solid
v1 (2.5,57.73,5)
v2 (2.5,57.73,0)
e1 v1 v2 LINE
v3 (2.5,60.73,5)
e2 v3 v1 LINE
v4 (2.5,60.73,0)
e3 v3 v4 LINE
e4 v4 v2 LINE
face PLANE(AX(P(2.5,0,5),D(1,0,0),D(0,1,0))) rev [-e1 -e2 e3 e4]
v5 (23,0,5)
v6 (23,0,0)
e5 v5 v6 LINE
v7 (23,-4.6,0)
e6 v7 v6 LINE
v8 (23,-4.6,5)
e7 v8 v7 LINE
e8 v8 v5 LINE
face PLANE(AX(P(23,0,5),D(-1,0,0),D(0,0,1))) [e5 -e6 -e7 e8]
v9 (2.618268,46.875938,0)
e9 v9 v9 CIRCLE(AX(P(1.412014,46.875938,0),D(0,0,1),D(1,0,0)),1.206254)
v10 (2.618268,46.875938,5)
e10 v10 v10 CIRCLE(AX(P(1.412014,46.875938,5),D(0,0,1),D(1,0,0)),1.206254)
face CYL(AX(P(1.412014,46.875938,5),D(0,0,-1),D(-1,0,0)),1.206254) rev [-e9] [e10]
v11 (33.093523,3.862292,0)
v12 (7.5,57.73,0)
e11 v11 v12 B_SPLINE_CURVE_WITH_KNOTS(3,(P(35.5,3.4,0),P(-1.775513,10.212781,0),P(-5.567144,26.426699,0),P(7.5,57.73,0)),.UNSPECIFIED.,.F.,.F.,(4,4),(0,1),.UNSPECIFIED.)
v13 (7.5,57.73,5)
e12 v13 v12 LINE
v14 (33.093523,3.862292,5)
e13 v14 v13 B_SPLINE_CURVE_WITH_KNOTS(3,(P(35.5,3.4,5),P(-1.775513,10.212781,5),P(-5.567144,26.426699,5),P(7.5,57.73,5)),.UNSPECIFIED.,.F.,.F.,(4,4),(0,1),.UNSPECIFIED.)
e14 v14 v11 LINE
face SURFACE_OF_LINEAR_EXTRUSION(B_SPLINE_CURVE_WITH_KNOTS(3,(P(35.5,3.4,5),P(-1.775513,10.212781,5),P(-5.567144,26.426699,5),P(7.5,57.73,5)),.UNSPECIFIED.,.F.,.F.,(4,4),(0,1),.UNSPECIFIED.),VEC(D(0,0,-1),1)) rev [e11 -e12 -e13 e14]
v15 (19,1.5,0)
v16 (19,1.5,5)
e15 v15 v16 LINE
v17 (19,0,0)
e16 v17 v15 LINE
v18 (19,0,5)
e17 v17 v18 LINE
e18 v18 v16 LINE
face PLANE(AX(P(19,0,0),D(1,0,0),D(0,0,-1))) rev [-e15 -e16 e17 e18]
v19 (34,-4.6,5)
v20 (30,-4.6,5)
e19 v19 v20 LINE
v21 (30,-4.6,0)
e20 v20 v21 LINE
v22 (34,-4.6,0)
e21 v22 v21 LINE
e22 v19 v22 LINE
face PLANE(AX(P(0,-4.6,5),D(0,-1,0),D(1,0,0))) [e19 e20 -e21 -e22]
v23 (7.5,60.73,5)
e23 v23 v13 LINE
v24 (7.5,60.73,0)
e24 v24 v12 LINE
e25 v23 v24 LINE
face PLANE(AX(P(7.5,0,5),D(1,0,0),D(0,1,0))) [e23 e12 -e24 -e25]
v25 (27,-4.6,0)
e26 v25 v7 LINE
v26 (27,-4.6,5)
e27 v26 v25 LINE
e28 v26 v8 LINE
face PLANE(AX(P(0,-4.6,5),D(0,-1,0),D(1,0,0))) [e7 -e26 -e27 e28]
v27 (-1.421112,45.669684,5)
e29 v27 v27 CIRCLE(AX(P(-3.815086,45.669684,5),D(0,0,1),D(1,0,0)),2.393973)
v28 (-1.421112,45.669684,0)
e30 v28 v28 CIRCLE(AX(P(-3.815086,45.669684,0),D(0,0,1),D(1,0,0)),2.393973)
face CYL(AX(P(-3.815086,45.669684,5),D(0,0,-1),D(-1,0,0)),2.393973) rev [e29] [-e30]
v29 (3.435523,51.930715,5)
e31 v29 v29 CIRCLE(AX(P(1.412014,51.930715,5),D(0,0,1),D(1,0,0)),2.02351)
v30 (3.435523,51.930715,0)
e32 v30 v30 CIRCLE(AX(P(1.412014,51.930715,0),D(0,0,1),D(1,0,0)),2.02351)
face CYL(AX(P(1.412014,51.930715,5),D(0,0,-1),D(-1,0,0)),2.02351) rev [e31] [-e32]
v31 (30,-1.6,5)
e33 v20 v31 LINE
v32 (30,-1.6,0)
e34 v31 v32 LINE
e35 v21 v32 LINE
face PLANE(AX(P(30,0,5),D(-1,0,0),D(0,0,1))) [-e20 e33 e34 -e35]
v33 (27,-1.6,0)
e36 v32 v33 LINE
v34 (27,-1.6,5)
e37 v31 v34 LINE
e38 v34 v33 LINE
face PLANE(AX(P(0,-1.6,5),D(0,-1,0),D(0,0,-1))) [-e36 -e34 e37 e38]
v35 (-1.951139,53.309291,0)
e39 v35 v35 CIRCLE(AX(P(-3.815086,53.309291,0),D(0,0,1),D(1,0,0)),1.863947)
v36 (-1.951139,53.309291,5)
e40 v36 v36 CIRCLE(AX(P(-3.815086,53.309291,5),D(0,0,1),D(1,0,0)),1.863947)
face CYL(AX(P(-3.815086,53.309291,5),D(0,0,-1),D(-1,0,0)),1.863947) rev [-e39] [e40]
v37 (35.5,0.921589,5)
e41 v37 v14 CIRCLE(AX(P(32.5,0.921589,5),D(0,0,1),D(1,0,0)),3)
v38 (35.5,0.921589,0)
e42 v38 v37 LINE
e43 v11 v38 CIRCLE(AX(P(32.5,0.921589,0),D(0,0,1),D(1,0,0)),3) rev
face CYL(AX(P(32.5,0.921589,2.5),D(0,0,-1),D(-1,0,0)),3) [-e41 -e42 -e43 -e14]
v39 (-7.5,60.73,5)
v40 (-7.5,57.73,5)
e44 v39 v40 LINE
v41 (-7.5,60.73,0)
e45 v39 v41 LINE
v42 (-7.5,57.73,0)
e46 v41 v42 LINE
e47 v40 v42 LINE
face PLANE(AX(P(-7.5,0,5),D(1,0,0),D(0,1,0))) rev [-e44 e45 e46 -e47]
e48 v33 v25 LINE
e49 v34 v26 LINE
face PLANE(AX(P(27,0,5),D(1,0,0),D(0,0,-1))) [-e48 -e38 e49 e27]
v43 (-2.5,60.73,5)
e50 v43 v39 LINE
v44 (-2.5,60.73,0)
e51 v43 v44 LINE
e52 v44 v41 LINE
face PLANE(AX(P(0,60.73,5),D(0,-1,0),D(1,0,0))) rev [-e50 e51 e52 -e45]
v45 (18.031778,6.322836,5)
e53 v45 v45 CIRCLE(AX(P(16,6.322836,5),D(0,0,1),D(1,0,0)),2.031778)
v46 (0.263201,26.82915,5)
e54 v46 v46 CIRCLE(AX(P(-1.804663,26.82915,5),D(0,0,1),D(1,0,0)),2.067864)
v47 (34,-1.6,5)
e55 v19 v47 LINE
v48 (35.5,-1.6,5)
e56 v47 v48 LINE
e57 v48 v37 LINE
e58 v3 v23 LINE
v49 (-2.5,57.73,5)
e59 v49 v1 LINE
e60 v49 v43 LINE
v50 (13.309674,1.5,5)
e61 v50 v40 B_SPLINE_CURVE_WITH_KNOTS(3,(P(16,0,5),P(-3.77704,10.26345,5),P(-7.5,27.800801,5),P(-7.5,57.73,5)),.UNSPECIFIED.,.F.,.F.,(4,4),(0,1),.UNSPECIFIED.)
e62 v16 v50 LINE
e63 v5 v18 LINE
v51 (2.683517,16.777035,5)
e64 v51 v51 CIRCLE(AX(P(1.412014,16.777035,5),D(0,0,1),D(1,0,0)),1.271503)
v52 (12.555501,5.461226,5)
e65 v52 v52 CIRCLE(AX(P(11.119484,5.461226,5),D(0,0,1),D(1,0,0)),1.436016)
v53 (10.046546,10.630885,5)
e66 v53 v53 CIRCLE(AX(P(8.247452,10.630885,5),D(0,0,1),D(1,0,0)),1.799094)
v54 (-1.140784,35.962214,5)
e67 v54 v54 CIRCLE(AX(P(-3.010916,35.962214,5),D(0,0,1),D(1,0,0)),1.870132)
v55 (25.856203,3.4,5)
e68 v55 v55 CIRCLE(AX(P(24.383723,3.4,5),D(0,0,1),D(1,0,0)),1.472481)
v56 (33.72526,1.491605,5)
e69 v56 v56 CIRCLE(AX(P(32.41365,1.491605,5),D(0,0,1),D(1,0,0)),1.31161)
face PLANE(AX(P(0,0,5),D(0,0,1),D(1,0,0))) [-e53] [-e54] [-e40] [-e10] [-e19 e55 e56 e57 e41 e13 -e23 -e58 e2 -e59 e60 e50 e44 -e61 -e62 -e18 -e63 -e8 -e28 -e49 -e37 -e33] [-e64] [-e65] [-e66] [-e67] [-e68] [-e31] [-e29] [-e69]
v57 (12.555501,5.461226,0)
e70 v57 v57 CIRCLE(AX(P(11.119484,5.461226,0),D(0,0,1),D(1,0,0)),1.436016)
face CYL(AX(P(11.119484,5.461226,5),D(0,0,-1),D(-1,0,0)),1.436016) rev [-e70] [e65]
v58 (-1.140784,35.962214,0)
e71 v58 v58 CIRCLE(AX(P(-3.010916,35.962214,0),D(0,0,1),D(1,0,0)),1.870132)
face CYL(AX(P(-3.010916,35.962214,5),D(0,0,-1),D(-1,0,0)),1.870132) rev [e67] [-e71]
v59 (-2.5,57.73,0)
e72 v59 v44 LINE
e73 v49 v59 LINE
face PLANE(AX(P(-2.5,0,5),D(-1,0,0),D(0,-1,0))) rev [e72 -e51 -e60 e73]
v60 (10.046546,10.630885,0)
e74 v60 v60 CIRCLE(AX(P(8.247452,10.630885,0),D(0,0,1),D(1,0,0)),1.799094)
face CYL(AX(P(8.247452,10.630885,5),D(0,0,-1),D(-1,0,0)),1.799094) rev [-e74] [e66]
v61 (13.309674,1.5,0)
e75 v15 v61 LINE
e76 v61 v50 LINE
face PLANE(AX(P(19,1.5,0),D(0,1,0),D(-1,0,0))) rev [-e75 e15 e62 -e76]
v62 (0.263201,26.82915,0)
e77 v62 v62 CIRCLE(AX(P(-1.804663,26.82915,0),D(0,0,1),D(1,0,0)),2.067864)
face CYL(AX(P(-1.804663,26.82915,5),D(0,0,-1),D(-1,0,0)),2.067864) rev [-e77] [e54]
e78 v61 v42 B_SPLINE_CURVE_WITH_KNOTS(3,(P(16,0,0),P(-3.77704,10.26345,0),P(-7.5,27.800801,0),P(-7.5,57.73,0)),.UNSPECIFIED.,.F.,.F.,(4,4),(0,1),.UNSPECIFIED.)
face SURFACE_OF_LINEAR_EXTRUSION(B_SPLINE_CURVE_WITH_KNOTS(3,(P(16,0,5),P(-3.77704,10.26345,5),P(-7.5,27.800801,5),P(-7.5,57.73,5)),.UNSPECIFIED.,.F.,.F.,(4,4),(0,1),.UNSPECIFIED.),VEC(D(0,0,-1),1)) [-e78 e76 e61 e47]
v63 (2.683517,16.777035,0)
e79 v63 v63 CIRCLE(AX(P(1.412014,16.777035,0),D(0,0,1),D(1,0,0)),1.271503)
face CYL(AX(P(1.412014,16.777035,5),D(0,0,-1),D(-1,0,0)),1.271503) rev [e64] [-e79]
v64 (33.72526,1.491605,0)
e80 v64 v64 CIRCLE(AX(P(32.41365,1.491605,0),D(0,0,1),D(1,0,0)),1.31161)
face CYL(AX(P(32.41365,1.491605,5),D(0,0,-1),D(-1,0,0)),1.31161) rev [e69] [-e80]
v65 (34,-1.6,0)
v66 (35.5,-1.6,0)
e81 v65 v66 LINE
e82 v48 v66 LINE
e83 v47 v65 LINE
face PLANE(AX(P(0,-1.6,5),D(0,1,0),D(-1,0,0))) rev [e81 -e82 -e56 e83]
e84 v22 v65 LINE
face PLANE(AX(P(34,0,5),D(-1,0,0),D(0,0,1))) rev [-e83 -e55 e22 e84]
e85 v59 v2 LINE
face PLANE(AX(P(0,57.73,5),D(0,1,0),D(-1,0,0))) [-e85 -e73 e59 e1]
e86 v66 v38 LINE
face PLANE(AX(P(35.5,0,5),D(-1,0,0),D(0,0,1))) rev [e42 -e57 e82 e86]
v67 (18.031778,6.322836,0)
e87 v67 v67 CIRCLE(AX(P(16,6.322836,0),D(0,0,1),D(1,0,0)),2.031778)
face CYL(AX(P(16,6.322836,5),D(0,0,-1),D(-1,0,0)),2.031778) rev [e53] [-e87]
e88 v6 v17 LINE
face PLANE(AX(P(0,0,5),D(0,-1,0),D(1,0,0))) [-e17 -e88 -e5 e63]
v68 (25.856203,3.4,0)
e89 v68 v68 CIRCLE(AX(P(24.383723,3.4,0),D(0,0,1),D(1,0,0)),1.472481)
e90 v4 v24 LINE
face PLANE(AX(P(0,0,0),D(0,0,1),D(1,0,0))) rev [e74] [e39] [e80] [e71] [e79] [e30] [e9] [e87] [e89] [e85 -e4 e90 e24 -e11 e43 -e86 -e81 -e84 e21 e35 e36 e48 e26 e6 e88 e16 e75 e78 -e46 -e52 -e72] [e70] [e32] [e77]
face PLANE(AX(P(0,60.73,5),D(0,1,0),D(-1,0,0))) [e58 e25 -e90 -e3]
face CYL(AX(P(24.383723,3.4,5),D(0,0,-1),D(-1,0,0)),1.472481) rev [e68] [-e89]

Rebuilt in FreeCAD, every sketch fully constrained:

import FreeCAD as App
import Part
import Sketcher

V = App.Vector
Q = App.Units.Quantity


def edges_at(feature, points):
    """Names of the edges that pass closest to the given points."""
    edges = feature.Shape.Edges
    near = lambda p: min(range(len(edges)), key=lambda i: edges[i].distToShape(Part.Vertex(*p))[0])
    return sorted({f"Edge{near(p) + 1}" for p in points})

doc = App.newDocument("Part")
body = doc.addObject("PartDesign::Body", "Body")

sketch1 = body.newObject("Sketcher::SketchObject", "Sketch")
sketch1.AttachmentSupport = (doc.getObject("XY_Plane"), [""])
sketch1.MapMode = "FlatFace"
sketch1.addGeometry(Part.LineSegment(V(30, -1.6, 0), V(30, -4.6, 0)), False)
sketch1.addGeometry(Part.LineSegment(V(30, -4.6, 0), V(34, -4.6, 0)), False)
sketch1.addGeometry(Part.LineSegment(V(34, -4.6, 0), V(34, -1.6, 0)), False)
sketch1.addGeometry(Part.LineSegment(V(34, -1.6, 0), V(35.5, -1.6, 0)), False)
sketch1.addGeometry(Part.LineSegment(V(35.5, -1.6, 0), V(35.5, 3.4, 0)), False)
sketch1.addGeometry(Part.BSplineCurve([V(35.5, 3.4, 0), V(-1.775513, 10.212781, 0), V(-5.567144, 26.426699, 0), V(7.5, 57.73, 0)], [4, 4], [0, 1], False, 3, [1, 1, 1, 1], False), False)
sketch1.addGeometry(Part.LineSegment(V(7.5, 57.73, 0), V(7.5, 60.73, 0)), False)
sketch1.addGeometry(Part.LineSegment(V(7.5, 60.73, 0), V(2.5, 60.73, 0)), False)
sketch1.addGeometry(Part.LineSegment(V(2.5, 60.73, 0), V(2.5, 57.73, 0)), False)
sketch1.addGeometry(Part.LineSegment(V(2.5, 57.73, 0), V(-2.5, 57.73, 0)), False)
sketch1.addGeometry(Part.LineSegment(V(-2.5, 57.73, 0), V(-2.5, 60.73, 0)), False)
sketch1.addGeometry(Part.LineSegment(V(-2.5, 60.73, 0), V(-7.5, 60.73, 0)), False)
sketch1.addGeometry(Part.LineSegment(V(-7.5, 60.73, 0), V(-7.5, 57.73, 0)), False)
sketch1.addGeometry(Part.BSplineCurve([V(16, 0, 0), V(-3.77704, 10.26345, 0), V(-7.5, 27.800801, 0), V(-7.5, 57.73, 0)], [4, 4], [0, 1], False, 3, [1, 1, 1, 1], False), False)
sketch1.addGeometry(Part.LineSegment(V(16, 0, 0), V(23, 0, 0)), False)
sketch1.addGeometry(Part.LineSegment(V(23, 0, 0), V(23, -4.6, 0)), False)
sketch1.addGeometry(Part.LineSegment(V(23, -4.6, 0), V(27, -4.6, 0)), False)
sketch1.addGeometry(Part.LineSegment(V(27, -4.6, 0), V(27, -1.6, 0)), False)
sketch1.addGeometry(Part.LineSegment(V(27, -1.6, 0), V(30, -1.6, 0)), False)
sketch1.addGeometry(Part.Circle(V(32.41365, 1.491605, 0), V(0, 0, 1), 1.31161), False)
sketch1.addGeometry(Part.Circle(V(24.383723, 3.4, 0), V(0, 0, 1), 1.472481), False)
sketch1.addGeometry(Part.Circle(V(16, 6.322836, 0), V(0, 0, 1), 2.031778), False)
sketch1.addGeometry(Part.Circle(V(11.119484, 5.461226, 0), V(0, 0, 1), 1.436016), False)
sketch1.addGeometry(Part.Circle(V(8.247452, 10.630885, 0), V(0, 0, 1), 1.799094), False)
sketch1.addGeometry(Part.Circle(V(1.412014, 16.777035, 0), V(0, 0, 1), 1.271503), False)
sketch1.addGeometry(Part.Circle(V(-1.804663, 26.82915, 0), V(0, 0, 1), 2.067864), False)
sketch1.addGeometry(Part.Circle(V(-3.010916, 35.962214, 0), V(0, 0, 1), 1.870132), False)
sketch1.addGeometry(Part.Circle(V(1.412014, 46.875938, 0), V(0, 0, 1), 1.206254), False)
sketch1.addGeometry(Part.Circle(V(-3.815086, 45.669684, 0), V(0, 0, 1), 2.393973), False)
sketch1.addGeometry(Part.Circle(V(1.412014, 51.930715, 0), V(0, 0, 1), 2.02351), False)
sketch1.addGeometry(Part.Circle(V(-3.815086, 53.309291, 0), V(0, 0, 1), 1.863947), False)
sketch1.addConstraint(Sketcher.Constraint("Block", 5))
sketch1.addConstraint(Sketcher.Constraint("Block", 13))
sketch1.addConstraint(Sketcher.Constraint("Coincident", 0, 2, 1, 1))
sketch1.addConstraint(Sketcher.Constraint("Coincident", 1, 2, 2, 1))
sketch1.addConstraint(Sketcher.Constraint("Coincident", 2, 2, 3, 1))
sketch1.addConstraint(Sketcher.Constraint("Coincident", 3, 2, 4, 1))
sketch1.addConstraint(Sketcher.Constraint("Coincident", 4, 2, 5, 1))
sketch1.addConstraint(Sketcher.Constraint("Coincident", 5, 2, 6, 1))
sketch1.addConstraint(Sketcher.Constraint("Coincident", 6, 2, 7, 1))
sketch1.addConstraint(Sketcher.Constraint("Coincident", 7, 2, 8, 1))
sketch1.addConstraint(Sketcher.Constraint("Coincident", 8, 2, 9, 1))
sketch1.addConstraint(Sketcher.Constraint("Coincident", 9, 2, 10, 1))
sketch1.addConstraint(Sketcher.Constraint("Coincident", 10, 2, 11, 1))
sketch1.addConstraint(Sketcher.Constraint("Coincident", 11, 2, 12, 1))
sketch1.addConstraint(Sketcher.Constraint("Coincident", 12, 2, 13, 2))
sketch1.addConstraint(Sketcher.Constraint("Coincident", 13, 1, 14, 1))
sketch1.addConstraint(Sketcher.Constraint("Coincident", 14, 2, 15, 1))
sketch1.addConstraint(Sketcher.Constraint("Coincident", 15, 2, 16, 1))
sketch1.addConstraint(Sketcher.Constraint("Coincident", 16, 2, 17, 1))
sketch1.addConstraint(Sketcher.Constraint("Coincident", 17, 2, 18, 1))
sketch1.addConstraint(Sketcher.Constraint("Coincident", 18, 2, 0, 1))
sketch1.addConstraint(Sketcher.Constraint("Vertical", 0))
sketch1.addConstraint(Sketcher.Constraint("Horizontal", 1))
sketch1.addConstraint(Sketcher.Constraint("Vertical", 2))
sketch1.addConstraint(Sketcher.Constraint("Horizontal", 3))
sketch1.addConstraint(Sketcher.Constraint("Vertical", 4))
sketch1.addConstraint(Sketcher.Constraint("Vertical", 6))
sketch1.addConstraint(Sketcher.Constraint("Horizontal", 7))
sketch1.addConstraint(Sketcher.Constraint("Vertical", 8))
sketch1.addConstraint(Sketcher.Constraint("Horizontal", 9))
sketch1.addConstraint(Sketcher.Constraint("Vertical", 10))
sketch1.addConstraint(Sketcher.Constraint("Horizontal", 11))
sketch1.addConstraint(Sketcher.Constraint("Vertical", 12))
sketch1.addConstraint(Sketcher.Constraint("Horizontal", 14))
sketch1.addConstraint(Sketcher.Constraint("Vertical", 15))
sketch1.addConstraint(Sketcher.Constraint("Horizontal", 16))
sketch1.addConstraint(Sketcher.Constraint("Vertical", 17))
sketch1.addConstraint(Sketcher.Constraint("Horizontal", 18))
sketch1.addConstraint(Sketcher.Constraint("Symmetric", 7, 2, 10, 2, -2))
sketch1.addConstraint(Sketcher.Constraint("Horizontal", 20, 3, 4, 2))
sketch1.addConstraint(Sketcher.Constraint("Horizontal", 9, 2, 12, 2))
sketch1.addConstraint(Sketcher.Constraint("Horizontal", 1, 2, 15, 2))
sketch1.addConstraint(Sketcher.Constraint("Horizontal", 3, 2, 17, 2))
sketch1.addConstraint(Sketcher.Constraint("Vertical", 24, 3, 27, 3))
sketch1.addConstraint(Sketcher.Constraint("Vertical", 27, 3, 29, 3))
sketch1.addConstraint(Sketcher.Constraint("Vertical", 28, 3, 30, 3))
sketch1.addConstraint(Sketcher.Constraint("Equal", 7, 9))
sketch1.addConstraint(Sketcher.Constraint("Equal", 1, 16))
sketch1.addConstraint(Sketcher.Constraint("Equal", 18, 0))
sketch1.addConstraint(Sketcher.Constraint("Equal", 11, 4))
sketch1.addConstraint(Sketcher.Constraint("Equal", 2, 6))
sketch1.addConstraint(Sketcher.Constraint("DistanceX", 1, 1, 1, 2, Q("4 mm")))
sketch1.addConstraint(Sketcher.Constraint("DistanceX", 14, 1, 14, 2, Q("7 mm")))
sketch1.addConstraint(Sketcher.Constraint("DistanceX", 18, 1, 18, 2, Q("3 mm")))
sketch1.addConstraint(Sketcher.Constraint("DistanceX", -1, 1, 21, 3, Q("16 mm")))
sketch1.addConstraint(Sketcher.Constraint("Diameter", 19, Q("2.623221 mm")))
sketch1.addConstraint(Sketcher.Constraint("Diameter", 20, Q("2.944961 mm")))
sketch1.addConstraint(Sketcher.Constraint("Diameter", 23, Q("3.598188 mm")))
sketch1.addConstraint(Sketcher.Constraint("Diameter", 29, Q("4.047019 mm")))
sketch1.addConstraint(Sketcher.Constraint("Diameter", 21, Q("4.063556 mm")))
sketch1.addConstraint(Sketcher.Constraint("Diameter", 22, Q("2.872033 mm")))
sketch1.addConstraint(Sketcher.Constraint("Diameter", 24, Q("2.543006 mm")))
sketch1.addConstraint(Sketcher.Constraint("Diameter", 25, Q("4.135727 mm")))
sketch1.addConstraint(Sketcher.Constraint("Diameter", 26, Q("3.740264 mm")))
sketch1.addConstraint(Sketcher.Constraint("Diameter", 27, Q("2.412507 mm")))
sketch1.addConstraint(Sketcher.Constraint("Diameter", 28, Q("4.787946 mm")))
sketch1.addConstraint(Sketcher.Constraint("Diameter", 30, Q("3.727894 mm")))
sketch1.addConstraint(Sketcher.Constraint("DistanceY", 21, 3, 24, 3, Q("10.454199 mm")))
sketch1.addConstraint(Sketcher.Constraint("DistanceX", 26, 3, 22, 3, Q("14.130401 mm")))
sketch1.addConstraint(Sketcher.Constraint("DistanceX", 28, 3, 27, 3, Q("5.227099 mm")))
sketch1.addConstraint(Sketcher.Constraint("DistanceY", 23, 3, 28, 3, Q("35.038799 mm")))
sketch1.addConstraint(Sketcher.Constraint("DistanceY", 26, 3, 29, 3, Q("15.968502 mm")))
sketch1.addConstraint(Sketcher.Constraint("DistanceX", -1, 1, 19, 3, Q("32.41365 mm")))
sketch1.addConstraint(Sketcher.Constraint("DistanceX", -1, 1, 23, 3, Q("8.247452 mm")))
sketch1.addConstraint(Sketcher.Constraint("DistanceY", -1, 1, 25, 3, Q("26.82915 mm")))
sketch1.addConstraint(Sketcher.Constraint("DistanceY", -1, 1, 30, 3, Q("53.309291 mm")))
sketch1.addConstraint(Sketcher.Constraint("DistanceY", 19, 3, 21, 3, Q("4.831231 mm")))
sketch1.addConstraint(Sketcher.Constraint("DistanceY", 22, 3, 21, 3, Q("0.86161 mm")))
sketch1.addConstraint(Sketcher.Constraint("DistanceX", 22, 3, 20, 3, Q("13.264238 mm")))
sketch1.addConstraint(Sketcher.Constraint("DistanceY", 22, 3, 23, 3, Q("5.169659 mm")))
sketch1.addConstraint(Sketcher.Constraint("DistanceX", 23, 3, 20, 3, Q("16.136271 mm")))
sketch1.addConstraint(Sketcher.Constraint("DistanceX", 24, 3, 22, 3, Q("9.70747 mm")))
sketch1.addConstraint(Sketcher.Constraint("DistanceY", 24, 3, 26, 3, Q("19.185178 mm")))
sketch1.addConstraint(Sketcher.Constraint("DistanceY", 25, 3, 27, 3, Q("20.046788 mm")))
sketch1.addConstraint(Sketcher.Constraint("DistanceY", 22, 3, 27, 3, Q("41.414711 mm")))
sketch1.addConstraint(Sketcher.Constraint("DistanceX", 25, 3, -1, 1, Q("1.804663 mm")))
pad1 = body.newObject("PartDesign::Pad", "Pad")
pad1.Profile = sketch1
pad1.Length = 5

sketch2 = body.newObject("Sketcher::SketchObject", "Sketch001")
sketch2.AttachmentSupport = (doc.getObject("XY_Plane"), [""])
sketch2.MapMode = "FlatFace"
sketch2.AttachmentOffset = App.Placement(V(0, 0, 5), App.Rotation())
sketch2.addGeometry(Part.LineSegment(V(13.3, 1.5, 0), V(13.3, 0, 0)), False)
sketch2.addGeometry(Part.LineSegment(V(13.3, 0, 0), V(19, 0, 0)), False)
sketch2.addGeometry(Part.LineSegment(V(19, 0, 0), V(19, 1.5, 0)), False)
sketch2.addGeometry(Part.LineSegment(V(19, 1.5, 0), V(13.3, 1.5, 0)), False)
sketch2.addConstraint(Sketcher.Constraint("Coincident", 0, 2, 1, 1))
sketch2.addConstraint(Sketcher.Constraint("Coincident", 1, 2, 2, 1))
sketch2.addConstraint(Sketcher.Constraint("Coincident", 2, 2, 3, 1))
sketch2.addConstraint(Sketcher.Constraint("Coincident", 3, 2, 0, 1))
sketch2.addConstraint(Sketcher.Constraint("Vertical", 0))
sketch2.addConstraint(Sketcher.Constraint("Horizontal", 1))
sketch2.addConstraint(Sketcher.Constraint("Vertical", 2))
sketch2.addConstraint(Sketcher.Constraint("Horizontal", 3))
sketch2.addConstraint(Sketcher.Constraint("PointOnObject", 0, 2, -1))
sketch2.addConstraint(Sketcher.Constraint("DistanceY", 0, 2, 0, 1, Q("1.5 mm")))
sketch2.addConstraint(Sketcher.Constraint("DistanceX", -1, 1, 1, 2, Q("19 mm")))
sketch2.addConstraint(Sketcher.Constraint("DistanceX", 1, 1, 1, 2, Q("5.690326 mm")))
pocket1 = body.newObject("PartDesign::Pocket", "Pocket")
pocket1.Profile = sketch2
pocket1.Type = "ThroughAll"
doc.recompute()

fillet = body.newObject("PartDesign::Fillet", "Fillet")
fillet.Base = (pocket1, edges_at(pocket1, [(35.5, 3.4, 2.5)]))
fillet.Radius = 3

doc.recompute()
